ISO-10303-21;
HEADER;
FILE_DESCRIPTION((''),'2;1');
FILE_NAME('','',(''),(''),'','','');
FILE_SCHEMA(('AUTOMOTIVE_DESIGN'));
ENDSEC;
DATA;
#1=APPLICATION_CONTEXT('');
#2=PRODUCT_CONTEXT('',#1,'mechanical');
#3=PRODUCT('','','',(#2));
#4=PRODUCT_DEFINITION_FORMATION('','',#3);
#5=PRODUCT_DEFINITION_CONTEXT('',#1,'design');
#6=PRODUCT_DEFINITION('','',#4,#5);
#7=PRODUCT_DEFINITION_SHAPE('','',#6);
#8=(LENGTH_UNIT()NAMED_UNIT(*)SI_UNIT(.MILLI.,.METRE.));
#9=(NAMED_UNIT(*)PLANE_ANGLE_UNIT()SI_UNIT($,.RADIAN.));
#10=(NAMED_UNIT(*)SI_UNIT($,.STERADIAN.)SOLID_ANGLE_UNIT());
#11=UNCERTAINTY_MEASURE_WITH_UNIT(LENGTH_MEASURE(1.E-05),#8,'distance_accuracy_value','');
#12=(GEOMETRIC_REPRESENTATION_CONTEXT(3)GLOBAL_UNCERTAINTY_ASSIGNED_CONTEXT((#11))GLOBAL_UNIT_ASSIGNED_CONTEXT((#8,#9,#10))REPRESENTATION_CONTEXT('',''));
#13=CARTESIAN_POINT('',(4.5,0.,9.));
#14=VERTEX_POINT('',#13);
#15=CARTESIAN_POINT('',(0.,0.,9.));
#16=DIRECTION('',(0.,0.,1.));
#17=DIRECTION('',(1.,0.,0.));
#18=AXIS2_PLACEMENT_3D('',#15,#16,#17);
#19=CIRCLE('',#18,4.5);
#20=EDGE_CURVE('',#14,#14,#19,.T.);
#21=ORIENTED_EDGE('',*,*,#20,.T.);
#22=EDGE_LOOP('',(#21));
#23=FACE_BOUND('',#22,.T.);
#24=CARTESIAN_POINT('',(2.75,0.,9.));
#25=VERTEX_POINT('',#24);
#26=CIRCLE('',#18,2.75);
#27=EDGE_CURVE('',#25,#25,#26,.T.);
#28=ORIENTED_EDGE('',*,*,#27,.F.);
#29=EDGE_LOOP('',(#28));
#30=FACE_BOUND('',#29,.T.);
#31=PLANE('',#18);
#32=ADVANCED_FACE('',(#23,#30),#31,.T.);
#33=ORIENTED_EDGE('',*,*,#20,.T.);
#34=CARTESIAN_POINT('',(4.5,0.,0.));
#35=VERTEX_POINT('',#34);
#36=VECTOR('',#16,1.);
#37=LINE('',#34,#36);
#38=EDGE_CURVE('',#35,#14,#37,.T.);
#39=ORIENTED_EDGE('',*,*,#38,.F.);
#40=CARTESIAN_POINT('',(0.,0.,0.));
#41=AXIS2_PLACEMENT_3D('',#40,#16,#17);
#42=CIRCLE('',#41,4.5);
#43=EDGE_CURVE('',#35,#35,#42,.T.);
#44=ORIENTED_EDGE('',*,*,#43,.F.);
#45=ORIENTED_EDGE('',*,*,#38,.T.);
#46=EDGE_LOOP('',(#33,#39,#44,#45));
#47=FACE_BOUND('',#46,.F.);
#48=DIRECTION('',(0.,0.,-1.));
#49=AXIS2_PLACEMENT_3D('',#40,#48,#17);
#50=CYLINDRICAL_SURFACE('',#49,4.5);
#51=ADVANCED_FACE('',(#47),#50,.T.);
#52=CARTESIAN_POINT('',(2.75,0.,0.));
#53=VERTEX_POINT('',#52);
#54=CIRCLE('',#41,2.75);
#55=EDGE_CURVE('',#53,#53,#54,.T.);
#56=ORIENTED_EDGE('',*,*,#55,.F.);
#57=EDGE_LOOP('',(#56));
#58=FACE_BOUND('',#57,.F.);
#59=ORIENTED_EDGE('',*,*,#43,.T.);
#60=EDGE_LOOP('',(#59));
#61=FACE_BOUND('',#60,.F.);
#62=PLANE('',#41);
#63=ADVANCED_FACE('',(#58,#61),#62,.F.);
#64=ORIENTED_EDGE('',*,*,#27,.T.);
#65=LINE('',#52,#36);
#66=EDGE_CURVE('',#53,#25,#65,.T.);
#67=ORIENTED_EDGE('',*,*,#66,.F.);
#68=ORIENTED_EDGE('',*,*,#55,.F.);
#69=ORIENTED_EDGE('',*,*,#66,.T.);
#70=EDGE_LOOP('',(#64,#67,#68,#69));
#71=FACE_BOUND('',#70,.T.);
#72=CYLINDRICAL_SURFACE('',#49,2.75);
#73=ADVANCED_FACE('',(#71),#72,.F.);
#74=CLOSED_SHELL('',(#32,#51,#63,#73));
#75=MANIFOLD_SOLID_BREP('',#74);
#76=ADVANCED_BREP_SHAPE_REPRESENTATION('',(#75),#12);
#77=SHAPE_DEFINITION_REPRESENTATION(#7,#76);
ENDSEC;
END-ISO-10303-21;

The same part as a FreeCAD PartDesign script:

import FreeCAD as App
import Part
import Sketcher

doc = App.newDocument("Part")
body = doc.addObject("PartDesign::Body", "Body")

# Sketch on XY plane
sketch1 = body.newObject("Sketcher::SketchObject", "Sketch")
sketch1.AttachmentSupport = (doc.getObject("XY_Plane"), [""])
sketch1.MapMode = "FlatFace"
sketch1.addGeometry([
    Part.Circle(App.Vector(0, 0, 0), App.Vector(0, 0, 1), 4.5),
    Part.Circle(App.Vector(0, 0, 0), App.Vector(0, 0, 1), 2.75),
], False)
sketch1.addConstraint([
    Sketcher.Constraint("Coincident", 0, 3, -1, 1),
    Sketcher.Constraint("Coincident", 1, 3, -1, 1),
    Sketcher.Constraint("Diameter", 0, 9.0),
    Sketcher.Constraint("Diameter", 1, 5.5),
])
pad1 = body.newObject("PartDesign::Pad", "Pad")
pad1.Profile = sketch1
pad1.Length = 9

doc.recompute()
